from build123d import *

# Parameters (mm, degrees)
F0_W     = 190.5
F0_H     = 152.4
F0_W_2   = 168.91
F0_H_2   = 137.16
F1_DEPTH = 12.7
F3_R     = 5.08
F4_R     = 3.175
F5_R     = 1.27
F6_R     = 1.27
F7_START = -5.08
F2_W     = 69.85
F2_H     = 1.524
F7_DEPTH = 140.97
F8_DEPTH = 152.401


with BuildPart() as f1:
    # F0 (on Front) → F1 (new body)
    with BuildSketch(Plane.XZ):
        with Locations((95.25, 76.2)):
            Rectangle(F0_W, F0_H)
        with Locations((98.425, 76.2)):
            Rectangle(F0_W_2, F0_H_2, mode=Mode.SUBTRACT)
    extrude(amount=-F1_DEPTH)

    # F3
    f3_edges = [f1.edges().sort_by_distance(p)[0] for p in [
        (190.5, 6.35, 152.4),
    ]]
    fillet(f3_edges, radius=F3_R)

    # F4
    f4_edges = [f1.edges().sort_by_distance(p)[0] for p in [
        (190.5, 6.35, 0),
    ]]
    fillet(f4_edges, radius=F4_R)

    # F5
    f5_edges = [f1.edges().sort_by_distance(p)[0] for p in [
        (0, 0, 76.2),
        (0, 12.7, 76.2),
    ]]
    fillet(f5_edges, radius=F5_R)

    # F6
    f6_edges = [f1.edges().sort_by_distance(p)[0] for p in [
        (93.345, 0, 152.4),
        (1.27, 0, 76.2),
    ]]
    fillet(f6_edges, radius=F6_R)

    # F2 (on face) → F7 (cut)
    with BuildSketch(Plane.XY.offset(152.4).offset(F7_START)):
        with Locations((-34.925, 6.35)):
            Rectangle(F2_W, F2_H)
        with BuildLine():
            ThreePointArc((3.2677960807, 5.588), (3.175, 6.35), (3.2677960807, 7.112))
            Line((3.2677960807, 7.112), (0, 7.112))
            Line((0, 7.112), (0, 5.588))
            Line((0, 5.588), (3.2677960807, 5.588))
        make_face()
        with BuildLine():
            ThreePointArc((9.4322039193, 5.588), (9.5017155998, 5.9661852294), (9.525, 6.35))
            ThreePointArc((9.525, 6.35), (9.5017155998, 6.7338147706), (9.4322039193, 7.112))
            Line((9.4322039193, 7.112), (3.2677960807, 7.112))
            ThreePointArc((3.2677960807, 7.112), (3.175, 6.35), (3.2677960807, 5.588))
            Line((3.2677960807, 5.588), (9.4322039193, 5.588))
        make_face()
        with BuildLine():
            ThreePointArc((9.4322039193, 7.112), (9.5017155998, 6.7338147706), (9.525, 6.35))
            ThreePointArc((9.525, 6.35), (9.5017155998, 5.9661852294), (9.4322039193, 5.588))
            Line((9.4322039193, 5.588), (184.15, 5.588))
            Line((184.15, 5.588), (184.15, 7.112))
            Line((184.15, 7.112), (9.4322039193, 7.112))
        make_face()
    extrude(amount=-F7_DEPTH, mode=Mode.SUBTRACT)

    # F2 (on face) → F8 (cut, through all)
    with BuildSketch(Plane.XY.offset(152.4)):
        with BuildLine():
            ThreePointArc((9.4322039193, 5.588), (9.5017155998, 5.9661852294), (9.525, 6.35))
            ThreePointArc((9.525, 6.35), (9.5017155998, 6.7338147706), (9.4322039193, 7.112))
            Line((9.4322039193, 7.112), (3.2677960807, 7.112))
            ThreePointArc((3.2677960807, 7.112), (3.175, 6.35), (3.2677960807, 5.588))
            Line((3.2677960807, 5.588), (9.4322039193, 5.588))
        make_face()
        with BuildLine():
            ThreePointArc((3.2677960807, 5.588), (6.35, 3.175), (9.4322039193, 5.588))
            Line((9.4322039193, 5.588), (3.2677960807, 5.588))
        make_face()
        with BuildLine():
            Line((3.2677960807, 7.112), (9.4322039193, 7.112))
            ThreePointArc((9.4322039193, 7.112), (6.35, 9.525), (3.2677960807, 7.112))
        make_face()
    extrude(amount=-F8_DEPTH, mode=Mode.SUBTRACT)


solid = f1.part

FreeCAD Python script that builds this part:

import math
import FreeCAD as App
import Part
import Sketcher
from FreeCAD import Vector
Q = App.Units.Quantity


def edges_at(feature, points):
    """Names of the edges that pass closest to the given points."""
    edges = feature.Shape.Edges
    near = lambda p: min(range(len(edges)), key=lambda i: edges[i].distToShape(Part.Vertex(*p))[0])
    return sorted({f"Edge{near(p) + 1}" for p in points})


def add_polygon(sketch, points):
    """Adds a closed chain of lines whose ends are joined by coincident constraints."""
    first, n = sketch.GeometryCount, len(points)
    for a, b in zip(points, points[1:] + points[:1]):
        sketch.addGeometry(Part.LineSegment(App.Vector(*a, 0), App.Vector(*b, 0)), False)
    for i in range(n):
        sketch.addConstraint(Sketcher.Constraint("Coincident", first + i, 2, first + (i + 1) % n, 1))

doc = App.newDocument("Part")
body = doc.addObject("PartDesign::Body", "Body")

sketch1 = body.newObject("Sketcher::SketchObject", "Sketch")
sketch1.AttachmentSupport = (doc.getObject("XZ_Plane"), [""])
sketch1.MapMode = "FlatFace"
add_polygon(sketch1, [(0, 152.4), (0, 0), (190.5, 0), (190.5, 152.4)])
add_polygon(sketch1, [(182.88, 7.62), (13.97, 7.62), (13.97, 144.78), (182.88, 144.78)])
sketch1.addConstraint(Sketcher.Constraint("Vertical", 0))
sketch1.addConstraint(Sketcher.Constraint("Horizontal", 1))
sketch1.addConstraint(Sketcher.Constraint("Vertical", 2))
sketch1.addConstraint(Sketcher.Constraint("Horizontal", 3))
sketch1.addConstraint(Sketcher.Constraint("Horizontal", 4))
sketch1.addConstraint(Sketcher.Constraint("Vertical", 5))
sketch1.addConstraint(Sketcher.Constraint("Horizontal", 6))
sketch1.addConstraint(Sketcher.Constraint("Vertical", 7))
sketch1.addConstraint(Sketcher.Constraint("Coincident", 0, 2, -1, 1))
sketch1.addConstraint(Sketcher.Constraint("DistanceY", 0, 2, 0, 1, Q("6 in")))
sketch1.addConstraint(Sketcher.Constraint("DistanceX", 1, 1, 1, 2, Q("7.5 in")))
sketch1.addConstraint(Sketcher.Constraint("DistanceY", 5, 1, 5, 2, Q("5.4 in")))
sketch1.addConstraint(Sketcher.Constraint("DistanceX", 4, 2, 4, 1, Q("6.65 in")))
sketch1.addConstraint(Sketcher.Constraint("DistanceY", -1, 1, 4, 2, Q("0.3 in")))
sketch1.addConstraint(Sketcher.Constraint("DistanceX", -1, 1, 6, 2, Q("7.2 in")))
pad1 = body.newObject("PartDesign::Pad", "Pad")
pad1.Profile = sketch1
pad1.Length = Q("0.5 in")
pad1.Reversed = True
doc.recompute()

fillet = body.newObject("PartDesign::Fillet", "Fillet")
fillet.Base = (pad1, edges_at(pad1, [(190.5, 6.35, 152.4)]))
fillet.Radius = Q("0.2 in")
doc.recompute()

fillet2 = body.newObject("PartDesign::Fillet", "Fillet001")
fillet2.Base = (fillet, edges_at(fillet, [(190.5, 6.35, 0)]))
fillet2.Radius = Q("0.125 in")
doc.recompute()

fillet3 = body.newObject("PartDesign::Fillet", "Fillet002")
fillet3.Base = (fillet2, edges_at(fillet2, [(0, 0, 76.2), (0, 12.7, 76.2)]))
fillet3.Radius = Q("0.05 in")
doc.recompute()

fillet4 = body.newObject("PartDesign::Fillet", "Fillet003")
fillet4.Base = (fillet3, edges_at(fillet3, [(93.345, 0, 152.4), (1.27, 0, 76.2)]))
fillet4.Radius = Q("0.05 in")

sketch2 = body.newObject("Sketcher::SketchObject", "Sketch001")
sketch2.AttachmentSupport = (doc.getObject("XY_Plane"), [""])
sketch2.MapMode = "FlatFace"
sketch2.AttachmentOffset = App.Placement(Vector(0, 0, 5.8 * 25.4), App.Rotation())
add_polygon(sketch2, [(-69.85, 7.112), (-69.85, 5.588), (184.15, 5.588), (184.15, 7.112)])
sketch2.addConstraint(Sketcher.Constraint("Vertical", 0))
sketch2.addConstraint(Sketcher.Constraint("Horizontal", 1))
sketch2.addConstraint(Sketcher.Constraint("Vertical", 2))
sketch2.addConstraint(Sketcher.Constraint("Horizontal", 3))
sketch2.addConstraint(Sketcher.Constraint("DistanceX", 1, 1, 1, 2, Q("10 in")))
sketch2.addConstraint(Sketcher.Constraint("DistanceY", 0, 2, 0, 1, Q("0.06 in")))
sketch2.addConstraint(Sketcher.Constraint("DistanceX", 0, 2, -1, 1, Q("2.75 in")))
sketch2.addConstraint(Sketcher.Constraint("DistanceY", -1, 1, 0, 2, Q("0.22 in")))
pocket1 = body.newObject("PartDesign::Pocket", "Pocket")
pocket1.Profile = sketch2
pocket1.Length = Q("5.55 in")

sketch3 = body.newObject("Sketcher::SketchObject", "Sketch002")
sketch3.AttachmentSupport = (doc.getObject("XY_Plane"), [""])
sketch3.MapMode = "FlatFace"
sketch3.AttachmentOffset = App.Placement(Vector(0, 0, 6 * 25.4), App.Rotation())
sketch3.addGeometry(Part.ArcOfCircle(Part.Circle(Vector(6.35, 6.35, 0), Vector(0, 0, 1), 3.175), math.radians(-13.88654), math.radians(0)), False)
sketch3.addGeometry(Part.ArcOfCircle(Part.Circle(Vector(6.35, 6.35, 0), Vector(0, 0, 1), 3.175), math.radians(0), math.radians(13.88654)), False)
sketch3.addGeometry(Part.ArcOfCircle(Part.Circle(Vector(6.35, 6.35, 0), Vector(0, 0, 1), 3.175), math.radians(13.88654), math.radians(166.11346)), False)
sketch3.addGeometry(Part.ArcOfCircle(Part.Circle(Vector(6.35, 6.35, 0), Vector(0, 0, 1), 3.175), math.radians(166.11346), math.radians(193.88654)), False)
sketch3.addGeometry(Part.ArcOfCircle(Part.Circle(Vector(6.35, 6.35, 0), Vector(0, 0, 1), 3.175), math.radians(-166.11346), math.radians(-13.88654)), False)
sketch3.addConstraint(Sketcher.Constraint("Tangent", 0, 2, 1, 1))
sketch3.addConstraint(Sketcher.Constraint("Tangent", 1, 2, 2, 1))
sketch3.addConstraint(Sketcher.Constraint("Tangent", 2, 2, 3, 1))
sketch3.addConstraint(Sketcher.Constraint("Tangent", 3, 2, 4, 1))
sketch3.addConstraint(Sketcher.Constraint("Tangent", 4, 2, 0, 1))
sketch3.addConstraint(Sketcher.Constraint("Coincident", 2, 3, 0, 3))
sketch3.addConstraint(Sketcher.Constraint("Horizontal", 4, 3, 0, 2))
sketch3.addConstraint(Sketcher.Constraint("Horizontal", 1, 2, 2, 2))
sketch3.addConstraint(Sketcher.Constraint("Horizontal", 3, 2, 4, 2))
sketch3.addConstraint(Sketcher.Constraint("Vertical", 2, 2, 3, 2))
sketch3.addConstraint(Sketcher.Constraint("Radius", 0, Q("0.125 in")))
sketch3.addConstraint(Sketcher.Constraint("DistanceX", -1, 1, 0, 3, Q("0.25 in")))
sketch3.addConstraint(Sketcher.Constraint("DistanceY", -1, 1, 0, 3, Q("0.25 in")))
sketch3.addConstraint(Sketcher.Constraint("DistanceY", -1, 1, 1, 2, Q("0.28 in")))
pocket2 = body.newObject("PartDesign::Pocket", "Pocket001")
pocket2.Profile = sketch3
pocket2.Type = "ThroughAll"

doc.recompute()
